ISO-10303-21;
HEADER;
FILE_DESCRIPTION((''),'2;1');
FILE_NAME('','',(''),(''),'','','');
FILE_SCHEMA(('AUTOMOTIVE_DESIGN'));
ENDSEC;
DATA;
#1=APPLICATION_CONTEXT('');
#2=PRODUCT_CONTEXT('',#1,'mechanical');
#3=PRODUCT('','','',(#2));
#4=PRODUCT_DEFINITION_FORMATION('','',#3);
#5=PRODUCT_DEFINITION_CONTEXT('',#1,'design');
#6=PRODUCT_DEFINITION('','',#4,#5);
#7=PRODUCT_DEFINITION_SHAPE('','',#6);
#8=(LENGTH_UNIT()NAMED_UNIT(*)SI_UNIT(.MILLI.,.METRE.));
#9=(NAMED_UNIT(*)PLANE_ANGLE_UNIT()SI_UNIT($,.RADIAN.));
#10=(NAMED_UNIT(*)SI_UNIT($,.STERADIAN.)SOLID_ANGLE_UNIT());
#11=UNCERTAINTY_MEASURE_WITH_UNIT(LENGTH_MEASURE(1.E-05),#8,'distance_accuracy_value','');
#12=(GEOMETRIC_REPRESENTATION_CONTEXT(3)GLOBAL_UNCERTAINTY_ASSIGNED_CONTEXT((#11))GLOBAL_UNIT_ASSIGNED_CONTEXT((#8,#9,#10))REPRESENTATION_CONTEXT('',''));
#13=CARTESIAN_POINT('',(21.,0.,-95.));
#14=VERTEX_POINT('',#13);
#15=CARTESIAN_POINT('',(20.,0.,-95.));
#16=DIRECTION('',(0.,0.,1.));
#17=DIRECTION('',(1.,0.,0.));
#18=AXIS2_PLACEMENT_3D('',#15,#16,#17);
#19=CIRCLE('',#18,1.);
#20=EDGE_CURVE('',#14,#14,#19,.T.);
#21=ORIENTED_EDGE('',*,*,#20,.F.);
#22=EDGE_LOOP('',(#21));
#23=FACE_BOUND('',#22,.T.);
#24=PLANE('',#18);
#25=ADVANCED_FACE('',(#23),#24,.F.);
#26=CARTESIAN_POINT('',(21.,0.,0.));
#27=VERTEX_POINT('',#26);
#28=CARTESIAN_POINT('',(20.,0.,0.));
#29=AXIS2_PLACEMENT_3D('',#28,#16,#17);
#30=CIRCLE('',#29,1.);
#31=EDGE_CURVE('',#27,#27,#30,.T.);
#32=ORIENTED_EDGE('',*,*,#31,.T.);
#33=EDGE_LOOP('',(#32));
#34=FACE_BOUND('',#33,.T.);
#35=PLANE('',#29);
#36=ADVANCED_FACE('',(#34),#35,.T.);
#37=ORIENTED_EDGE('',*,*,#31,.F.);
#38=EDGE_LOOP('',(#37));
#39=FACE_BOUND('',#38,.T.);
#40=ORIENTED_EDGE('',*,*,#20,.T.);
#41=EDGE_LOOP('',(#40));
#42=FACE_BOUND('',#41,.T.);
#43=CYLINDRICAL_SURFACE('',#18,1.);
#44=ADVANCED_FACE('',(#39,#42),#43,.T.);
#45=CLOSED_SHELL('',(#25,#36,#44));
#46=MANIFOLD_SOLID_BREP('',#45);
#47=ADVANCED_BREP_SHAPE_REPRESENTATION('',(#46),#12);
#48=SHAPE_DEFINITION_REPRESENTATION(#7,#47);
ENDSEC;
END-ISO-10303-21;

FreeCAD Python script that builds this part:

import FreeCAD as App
import Part
import Sketcher
Q = App.Units.Quantity

doc = App.newDocument("Part")
body = doc.addObject("PartDesign::Body", "Body")

# Sketch on XY plane
sketch1 = doc.addObject("Sketcher::SketchObject", "Sketch")
body.addObject(sketch1)
sketch1.AttachmentSupport = (doc.XY_Plane, [""])
sketch1.MapMode = "FlatFace"
sketch1.addGeometry(Part.Circle(App.Vector(20, 0, 0), App.Vector(0, 0, 1), 1), False)
sketch1.addConstraint([
    Sketcher.Constraint("PointOnObject", 0, 3, -1),
    Sketcher.Constraint("Diameter", 0, Q("2 mm")),
    Sketcher.Constraint("DistanceX", -1, 1, 0, 3, Q("20 mm")),
])
pad1 = doc.addObject("PartDesign::Pad", "Pad")
body.addObject(pad1)
pad1.Profile = sketch1
pad1.Length = 95
pad1.Reversed = True

doc.recompute()
